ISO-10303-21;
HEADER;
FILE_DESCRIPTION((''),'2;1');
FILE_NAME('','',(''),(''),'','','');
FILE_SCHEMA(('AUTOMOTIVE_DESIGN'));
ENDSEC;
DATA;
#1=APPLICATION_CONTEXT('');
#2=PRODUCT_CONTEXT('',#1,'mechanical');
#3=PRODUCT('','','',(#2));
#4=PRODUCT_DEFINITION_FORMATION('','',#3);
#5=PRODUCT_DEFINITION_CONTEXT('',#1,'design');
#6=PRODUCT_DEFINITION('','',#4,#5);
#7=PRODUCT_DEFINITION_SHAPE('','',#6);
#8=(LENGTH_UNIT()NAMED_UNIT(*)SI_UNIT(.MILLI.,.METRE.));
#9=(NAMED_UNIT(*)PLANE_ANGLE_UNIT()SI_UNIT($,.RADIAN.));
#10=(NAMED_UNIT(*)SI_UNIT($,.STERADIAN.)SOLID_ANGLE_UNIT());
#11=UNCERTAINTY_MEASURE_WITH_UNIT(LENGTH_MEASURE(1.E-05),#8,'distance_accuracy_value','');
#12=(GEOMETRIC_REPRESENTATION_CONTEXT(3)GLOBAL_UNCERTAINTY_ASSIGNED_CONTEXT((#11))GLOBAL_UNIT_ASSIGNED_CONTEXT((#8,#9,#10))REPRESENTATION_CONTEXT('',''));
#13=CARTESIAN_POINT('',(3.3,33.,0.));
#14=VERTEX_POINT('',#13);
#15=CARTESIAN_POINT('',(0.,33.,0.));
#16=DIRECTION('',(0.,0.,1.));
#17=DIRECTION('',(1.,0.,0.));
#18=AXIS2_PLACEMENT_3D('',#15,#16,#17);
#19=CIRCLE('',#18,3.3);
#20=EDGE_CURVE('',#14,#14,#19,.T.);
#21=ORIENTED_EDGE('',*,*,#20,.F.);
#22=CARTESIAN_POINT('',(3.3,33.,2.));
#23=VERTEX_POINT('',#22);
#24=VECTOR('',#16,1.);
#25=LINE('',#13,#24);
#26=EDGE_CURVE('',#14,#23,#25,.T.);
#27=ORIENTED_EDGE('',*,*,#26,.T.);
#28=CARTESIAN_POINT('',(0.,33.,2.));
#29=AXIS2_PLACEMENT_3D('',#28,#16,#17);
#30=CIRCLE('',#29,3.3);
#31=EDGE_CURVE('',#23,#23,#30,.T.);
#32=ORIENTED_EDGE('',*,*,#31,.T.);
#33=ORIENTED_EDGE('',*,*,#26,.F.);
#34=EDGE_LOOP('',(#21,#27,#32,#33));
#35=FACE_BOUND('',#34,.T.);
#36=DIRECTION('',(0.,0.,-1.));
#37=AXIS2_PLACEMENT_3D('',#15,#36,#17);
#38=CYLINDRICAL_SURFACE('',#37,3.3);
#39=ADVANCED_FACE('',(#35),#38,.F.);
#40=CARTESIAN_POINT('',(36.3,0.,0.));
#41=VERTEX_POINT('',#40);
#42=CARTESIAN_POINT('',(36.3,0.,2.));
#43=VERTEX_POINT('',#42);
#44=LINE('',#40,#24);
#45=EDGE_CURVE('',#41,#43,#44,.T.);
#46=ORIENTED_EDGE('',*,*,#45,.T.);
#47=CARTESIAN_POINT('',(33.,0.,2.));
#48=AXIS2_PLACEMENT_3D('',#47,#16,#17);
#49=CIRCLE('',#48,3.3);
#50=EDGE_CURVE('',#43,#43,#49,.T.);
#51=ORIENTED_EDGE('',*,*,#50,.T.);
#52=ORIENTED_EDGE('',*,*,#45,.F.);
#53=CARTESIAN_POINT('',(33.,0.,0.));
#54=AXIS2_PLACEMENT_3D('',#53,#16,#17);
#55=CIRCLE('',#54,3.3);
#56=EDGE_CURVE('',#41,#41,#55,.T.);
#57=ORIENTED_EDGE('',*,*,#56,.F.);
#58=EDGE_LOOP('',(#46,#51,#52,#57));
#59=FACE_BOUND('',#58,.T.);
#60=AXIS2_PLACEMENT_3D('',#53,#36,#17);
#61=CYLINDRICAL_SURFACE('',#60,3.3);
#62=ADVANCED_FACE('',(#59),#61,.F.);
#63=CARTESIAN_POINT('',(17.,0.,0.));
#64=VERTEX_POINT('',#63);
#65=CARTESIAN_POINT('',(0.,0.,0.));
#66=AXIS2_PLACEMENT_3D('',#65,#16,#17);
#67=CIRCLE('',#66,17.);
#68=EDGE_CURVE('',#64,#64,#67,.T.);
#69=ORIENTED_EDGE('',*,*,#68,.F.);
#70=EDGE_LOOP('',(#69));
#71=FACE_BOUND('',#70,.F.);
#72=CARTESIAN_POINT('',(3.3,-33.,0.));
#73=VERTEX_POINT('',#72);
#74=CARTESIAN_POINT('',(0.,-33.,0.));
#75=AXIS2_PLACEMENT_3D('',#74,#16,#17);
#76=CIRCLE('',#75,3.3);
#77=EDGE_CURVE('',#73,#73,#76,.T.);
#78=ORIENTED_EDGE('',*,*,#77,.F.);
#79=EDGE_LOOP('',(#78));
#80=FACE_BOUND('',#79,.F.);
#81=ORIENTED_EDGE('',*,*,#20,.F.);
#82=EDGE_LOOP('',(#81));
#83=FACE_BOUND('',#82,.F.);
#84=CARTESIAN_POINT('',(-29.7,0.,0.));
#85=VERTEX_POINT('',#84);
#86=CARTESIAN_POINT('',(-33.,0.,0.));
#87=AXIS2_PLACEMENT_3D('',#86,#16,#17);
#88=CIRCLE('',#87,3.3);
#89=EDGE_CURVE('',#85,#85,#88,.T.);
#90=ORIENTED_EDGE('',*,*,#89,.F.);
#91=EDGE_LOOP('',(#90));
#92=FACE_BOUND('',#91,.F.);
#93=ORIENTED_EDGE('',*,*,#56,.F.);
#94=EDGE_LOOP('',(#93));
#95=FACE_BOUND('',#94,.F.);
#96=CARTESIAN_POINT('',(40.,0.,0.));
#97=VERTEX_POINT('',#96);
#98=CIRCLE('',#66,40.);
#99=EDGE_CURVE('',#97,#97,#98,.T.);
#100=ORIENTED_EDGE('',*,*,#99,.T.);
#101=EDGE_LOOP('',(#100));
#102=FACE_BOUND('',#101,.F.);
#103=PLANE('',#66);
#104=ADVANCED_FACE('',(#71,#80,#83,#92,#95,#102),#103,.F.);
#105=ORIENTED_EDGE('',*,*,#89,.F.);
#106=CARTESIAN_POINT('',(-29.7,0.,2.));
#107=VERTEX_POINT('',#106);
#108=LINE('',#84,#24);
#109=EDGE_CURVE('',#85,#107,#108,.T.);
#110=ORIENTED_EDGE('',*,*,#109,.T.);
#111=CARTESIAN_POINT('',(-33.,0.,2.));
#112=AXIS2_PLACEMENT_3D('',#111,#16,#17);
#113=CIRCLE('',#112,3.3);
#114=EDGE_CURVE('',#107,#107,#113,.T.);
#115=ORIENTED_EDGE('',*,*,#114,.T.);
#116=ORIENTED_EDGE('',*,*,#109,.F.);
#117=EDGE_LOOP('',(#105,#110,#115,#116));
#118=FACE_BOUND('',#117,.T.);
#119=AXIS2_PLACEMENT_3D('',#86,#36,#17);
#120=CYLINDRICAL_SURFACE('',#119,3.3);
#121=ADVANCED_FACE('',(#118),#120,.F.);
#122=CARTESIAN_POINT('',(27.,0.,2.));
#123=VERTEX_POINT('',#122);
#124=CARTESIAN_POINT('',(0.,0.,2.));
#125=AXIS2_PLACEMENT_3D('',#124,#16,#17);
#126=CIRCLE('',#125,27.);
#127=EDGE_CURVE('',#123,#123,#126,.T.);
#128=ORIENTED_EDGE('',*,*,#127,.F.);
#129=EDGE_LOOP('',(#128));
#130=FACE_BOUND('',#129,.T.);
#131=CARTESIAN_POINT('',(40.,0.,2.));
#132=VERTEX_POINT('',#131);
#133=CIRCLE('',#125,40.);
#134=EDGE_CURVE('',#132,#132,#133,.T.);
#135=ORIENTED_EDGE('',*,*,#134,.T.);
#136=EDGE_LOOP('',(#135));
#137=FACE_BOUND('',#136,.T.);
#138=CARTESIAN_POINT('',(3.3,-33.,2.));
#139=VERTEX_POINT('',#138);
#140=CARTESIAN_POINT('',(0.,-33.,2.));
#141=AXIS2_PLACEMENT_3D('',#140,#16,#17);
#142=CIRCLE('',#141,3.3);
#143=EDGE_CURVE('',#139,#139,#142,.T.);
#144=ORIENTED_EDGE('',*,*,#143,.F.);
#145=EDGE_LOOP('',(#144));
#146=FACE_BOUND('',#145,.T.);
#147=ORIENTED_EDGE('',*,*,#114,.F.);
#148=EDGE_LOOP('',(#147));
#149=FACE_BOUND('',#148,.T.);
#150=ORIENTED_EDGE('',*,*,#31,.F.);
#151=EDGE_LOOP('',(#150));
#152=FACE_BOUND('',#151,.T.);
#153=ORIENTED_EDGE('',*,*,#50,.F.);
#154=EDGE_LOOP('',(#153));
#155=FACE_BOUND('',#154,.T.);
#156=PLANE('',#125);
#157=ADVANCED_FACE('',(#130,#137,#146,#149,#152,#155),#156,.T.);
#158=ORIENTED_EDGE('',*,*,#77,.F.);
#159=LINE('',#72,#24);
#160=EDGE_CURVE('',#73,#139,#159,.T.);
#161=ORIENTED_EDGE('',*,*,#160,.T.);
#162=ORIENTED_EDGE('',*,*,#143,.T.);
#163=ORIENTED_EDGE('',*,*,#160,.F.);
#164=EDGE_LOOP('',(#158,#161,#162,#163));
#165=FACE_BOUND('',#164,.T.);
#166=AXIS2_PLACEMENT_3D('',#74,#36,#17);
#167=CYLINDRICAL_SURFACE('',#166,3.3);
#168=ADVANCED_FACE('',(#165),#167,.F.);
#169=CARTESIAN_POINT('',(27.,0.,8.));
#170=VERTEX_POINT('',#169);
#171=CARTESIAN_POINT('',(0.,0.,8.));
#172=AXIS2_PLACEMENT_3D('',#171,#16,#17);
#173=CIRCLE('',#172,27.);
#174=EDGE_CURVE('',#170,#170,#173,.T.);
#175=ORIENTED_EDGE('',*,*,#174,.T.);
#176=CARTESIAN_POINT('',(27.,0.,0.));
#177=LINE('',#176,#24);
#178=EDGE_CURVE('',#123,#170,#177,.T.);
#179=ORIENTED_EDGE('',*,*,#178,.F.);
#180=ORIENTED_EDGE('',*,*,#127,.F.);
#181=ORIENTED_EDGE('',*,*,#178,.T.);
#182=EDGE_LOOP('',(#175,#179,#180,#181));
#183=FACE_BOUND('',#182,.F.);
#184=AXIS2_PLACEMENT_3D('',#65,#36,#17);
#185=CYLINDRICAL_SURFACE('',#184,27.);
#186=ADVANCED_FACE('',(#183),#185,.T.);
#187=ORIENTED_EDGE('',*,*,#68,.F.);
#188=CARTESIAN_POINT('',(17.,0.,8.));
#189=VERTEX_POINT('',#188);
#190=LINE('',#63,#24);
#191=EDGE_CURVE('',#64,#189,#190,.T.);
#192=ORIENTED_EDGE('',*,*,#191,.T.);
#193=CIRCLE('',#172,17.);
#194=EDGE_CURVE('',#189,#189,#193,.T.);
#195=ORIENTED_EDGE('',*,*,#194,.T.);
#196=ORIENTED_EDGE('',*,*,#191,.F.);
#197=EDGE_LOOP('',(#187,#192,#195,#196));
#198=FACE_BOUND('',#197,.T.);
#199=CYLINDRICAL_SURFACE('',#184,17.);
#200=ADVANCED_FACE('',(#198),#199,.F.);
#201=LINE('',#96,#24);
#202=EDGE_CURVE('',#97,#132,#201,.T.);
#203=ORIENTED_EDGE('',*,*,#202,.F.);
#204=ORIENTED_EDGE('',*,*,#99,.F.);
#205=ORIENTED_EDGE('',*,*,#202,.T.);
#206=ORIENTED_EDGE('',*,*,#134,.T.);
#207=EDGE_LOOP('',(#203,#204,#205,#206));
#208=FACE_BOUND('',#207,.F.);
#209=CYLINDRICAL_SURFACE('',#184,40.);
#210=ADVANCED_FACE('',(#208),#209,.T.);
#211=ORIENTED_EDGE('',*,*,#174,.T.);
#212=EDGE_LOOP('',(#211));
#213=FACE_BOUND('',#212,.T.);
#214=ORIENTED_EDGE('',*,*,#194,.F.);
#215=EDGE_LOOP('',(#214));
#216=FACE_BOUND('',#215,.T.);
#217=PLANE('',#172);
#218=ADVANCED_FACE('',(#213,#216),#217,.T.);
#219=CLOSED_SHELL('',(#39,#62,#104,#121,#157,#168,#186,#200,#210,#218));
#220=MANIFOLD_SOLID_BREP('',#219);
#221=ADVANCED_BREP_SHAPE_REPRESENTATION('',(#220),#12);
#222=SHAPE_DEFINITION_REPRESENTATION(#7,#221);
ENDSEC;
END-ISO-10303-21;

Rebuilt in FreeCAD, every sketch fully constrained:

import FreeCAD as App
import Part
import Sketcher
from FreeCAD import Vector
Q = App.Units.Quantity

doc = App.newDocument("Part")
body = doc.addObject("PartDesign::Body", "Body")

sketch1 = body.newObject("Sketcher::SketchObject", "Sketch")
sketch1.AttachmentSupport = (doc.getObject("XY_Plane"), [""])
sketch1.MapMode = "FlatFace"
sketch1.addGeometry([
    Part.Circle(Vector(0, 0, 0), Vector(0, 0, 1), 40),
    Part.Circle(Vector(0, -33, 0), Vector(0, 0, 1), 3.3),
    Part.Circle(Vector(-33, 0, 0), Vector(0, 0, 1), 3.3),
    Part.Circle(Vector(0, 0, 0), Vector(0, 0, 1), 27),
    Part.Circle(Vector(33, 0, 0), Vector(0, 0, 1), 3.3),
    Part.Circle(Vector(0, 33, 0), Vector(0, 0, 1), 3.3),
], False)
sketch1.addConstraint([
    Sketcher.Constraint("Coincident", 0, 3, -1, 1),
    Sketcher.Constraint("Coincident", 3, 3, -1, 1),
    Sketcher.Constraint("Equal", 1, 2),
    Sketcher.Constraint("Equal", 2, 4),
    Sketcher.Constraint("Equal", 4, 5),
    Sketcher.Constraint("Symmetric", 2, 3, 4, 3, -1, 1),
    Sketcher.Constraint("Symmetric", 1, 3, 5, 3, -1, 1),
    Sketcher.Constraint("PointOnObject", 1, 3, -2),
    Sketcher.Constraint("PointOnObject", 2, 3, -1),
    Sketcher.Constraint("Diameter", 0, Q("80 mm")),
    Sketcher.Constraint("Diameter", 3, Q("54 mm")),
    Sketcher.Constraint("Diameter", 1, Q("6.6 mm")),
    Sketcher.Constraint("DistanceY", 1, 3, -1, 1, Q("33 mm")),
    Sketcher.Constraint("DistanceX", 2, 3, -1, 1, Q("33 mm")),
])
pad1 = body.newObject("PartDesign::Pad", "Pad")
pad1.Profile = sketch1
pad1.Length = 2

sketch2 = body.newObject("Sketcher::SketchObject", "Sketch001")
sketch2.AttachmentSupport = (doc.getObject("XY_Plane"), [""])
sketch2.MapMode = "FlatFace"
sketch2.addGeometry([
    Part.Circle(Vector(0, 0, 0), Vector(0, 0, 1), 27),
    Part.Circle(Vector(0, 0, 0), Vector(0, 0, 1), 17),
], False)
sketch2.addConstraint([
    Sketcher.Constraint("Coincident", 0, 3, -1, 1),
    Sketcher.Constraint("Coincident", 1, 3, -1, 1),
    Sketcher.Constraint("Diameter", 0, Q("54 mm")),
    Sketcher.Constraint("Diameter", 1, Q("34 mm")),
])
pad2 = body.newObject("PartDesign::Pad", "Pad001")
pad2.Profile = sketch2
pad2.Length = 8

doc.recompute()
